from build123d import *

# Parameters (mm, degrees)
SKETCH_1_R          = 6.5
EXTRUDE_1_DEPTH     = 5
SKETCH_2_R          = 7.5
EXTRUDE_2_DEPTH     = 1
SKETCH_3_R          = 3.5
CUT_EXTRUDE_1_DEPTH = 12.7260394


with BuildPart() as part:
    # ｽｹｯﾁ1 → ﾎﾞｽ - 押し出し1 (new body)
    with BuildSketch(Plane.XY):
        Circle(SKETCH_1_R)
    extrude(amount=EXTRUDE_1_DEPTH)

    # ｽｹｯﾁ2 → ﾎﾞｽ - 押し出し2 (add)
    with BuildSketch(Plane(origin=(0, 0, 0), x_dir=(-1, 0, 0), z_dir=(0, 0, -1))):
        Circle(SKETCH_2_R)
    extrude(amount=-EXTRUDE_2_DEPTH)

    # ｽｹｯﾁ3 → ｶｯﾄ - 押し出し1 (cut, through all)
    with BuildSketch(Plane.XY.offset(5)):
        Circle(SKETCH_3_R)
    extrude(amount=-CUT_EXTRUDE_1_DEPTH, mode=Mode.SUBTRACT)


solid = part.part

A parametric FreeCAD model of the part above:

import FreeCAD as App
import Part
import Sketcher

doc = App.newDocument("Part")
body = doc.addObject("PartDesign::Body", "Body")

# Sketch on XY plane
sketch1 = body.newObject("Sketcher::SketchObject", "Sketch")
sketch1.AttachmentSupport = (doc.getObject("XY_Plane"), [""])
sketch1.MapMode = "FlatFace"
sketch1.addGeometry(Part.Circle(App.Vector(0, 0, 0), App.Vector(0, 0, 1), 6), False)
sketch1.addConstraint([
    Sketcher.Constraint("Coincident", 0, 3, -1, 1),
    Sketcher.Constraint("Diameter", 0, 13.0),
])
pad1 = body.newObject("PartDesign::Pad", "Pad")
pad1.Profile = sketch1
pad1.Length = 5

# Sketch on XY plane
sketch2 = body.newObject("Sketcher::SketchObject", "Sketch001")
sketch2.AttachmentSupport = (doc.getObject("XY_Plane"), [""])
sketch2.MapMode = "FlatFace"
sketch2.addGeometry(Part.Circle(App.Vector(0, 0, 0), App.Vector(0, 0, 1), 8), False)
sketch2.addConstraint([
    Sketcher.Constraint("Coincident", 0, 3, -1, 1),
    Sketcher.Constraint("Diameter", 0, 15.0),
])
pad2 = body.newObject("PartDesign::Pad", "Pad001")
pad2.Profile = sketch2
pad2.Length = 1

# Sketch on XY plane
sketch3 = body.newObject("Sketcher::SketchObject", "Sketch002")
sketch3.AttachmentSupport = (doc.getObject("XY_Plane"), [""])
sketch3.MapMode = "FlatFace"
sketch3.AttachmentOffset = App.Placement(App.Vector(0, 0, 5), App.Rotation())
sketch3.addGeometry(Part.Circle(App.Vector(0, 0, 0), App.Vector(0, 0, 1), 3.5), False)
sketch3.addConstraint([
    Sketcher.Constraint("Coincident", 0, 3, -1, 1),
    Sketcher.Constraint("Diameter", 0, 7.0),
])
pocket1 = body.newObject("PartDesign::Pocket", "Pocket")
pocket1.Profile = sketch3
pocket1.Type = "ThroughAll"

doc.recompute()
